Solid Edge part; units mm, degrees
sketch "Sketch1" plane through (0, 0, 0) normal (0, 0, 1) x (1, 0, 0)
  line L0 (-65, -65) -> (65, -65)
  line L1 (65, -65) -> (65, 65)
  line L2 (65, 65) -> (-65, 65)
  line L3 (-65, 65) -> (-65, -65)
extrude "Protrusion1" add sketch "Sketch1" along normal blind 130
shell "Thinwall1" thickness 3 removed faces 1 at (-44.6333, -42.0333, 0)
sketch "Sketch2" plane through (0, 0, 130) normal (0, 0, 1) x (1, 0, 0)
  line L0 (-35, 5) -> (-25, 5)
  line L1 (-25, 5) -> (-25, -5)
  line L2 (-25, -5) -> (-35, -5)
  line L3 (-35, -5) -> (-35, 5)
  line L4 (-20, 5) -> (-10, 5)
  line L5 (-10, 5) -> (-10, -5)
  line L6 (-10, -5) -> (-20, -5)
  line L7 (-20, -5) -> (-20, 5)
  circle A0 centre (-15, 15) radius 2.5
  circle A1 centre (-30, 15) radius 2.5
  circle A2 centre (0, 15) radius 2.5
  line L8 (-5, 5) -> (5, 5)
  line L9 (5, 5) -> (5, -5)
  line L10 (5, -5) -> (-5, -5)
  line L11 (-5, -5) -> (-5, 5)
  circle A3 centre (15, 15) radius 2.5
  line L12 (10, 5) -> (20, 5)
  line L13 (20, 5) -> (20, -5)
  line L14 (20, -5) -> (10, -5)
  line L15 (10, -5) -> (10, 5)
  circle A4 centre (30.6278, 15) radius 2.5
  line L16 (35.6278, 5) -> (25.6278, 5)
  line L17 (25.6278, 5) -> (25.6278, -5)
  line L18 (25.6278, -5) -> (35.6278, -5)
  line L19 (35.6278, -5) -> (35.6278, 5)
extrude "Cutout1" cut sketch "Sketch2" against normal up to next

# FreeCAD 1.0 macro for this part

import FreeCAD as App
import Part
import Sketcher
from FreeCAD import Vector


def faces_at(feature, points):
    """Names of the faces that lie closest to the given points."""
    faces = feature.Shape.Faces
    near = lambda p: min(range(len(faces)), key=lambda i: faces[i].distToShape(Part.Vertex(*p))[0])
    return sorted({f"Face{near(p) + 1}" for p in points})

doc = App.newDocument("Part")
body = doc.addObject("PartDesign::Body", "Body")

sketch1 = body.newObject("Sketcher::SketchObject", "Sketch")
sketch1.AttachmentSupport = (doc.getObject("XY_Plane"), [""])
sketch1.MapMode = "FlatFace"
sketch1.addGeometry([
    Part.LineSegment(Vector(-65, 65, 0), Vector(-65, -65, 0)),
    Part.LineSegment(Vector(-65, -65, 0), Vector(65, -65, 0)),
    Part.LineSegment(Vector(65, -65, 0), Vector(65, 65, 0)),
    Part.LineSegment(Vector(65, 65, 0), Vector(-65, 65, 0)),
], False)
sketch1.addConstraint([
    Sketcher.Constraint("Coincident", 0, 2, 1, 1),
    Sketcher.Constraint("Coincident", 1, 2, 2, 1),
    Sketcher.Constraint("Coincident", 2, 2, 3, 1),
    Sketcher.Constraint("Coincident", 3, 2, 0, 1),
    Sketcher.Constraint("Vertical", 0),
    Sketcher.Constraint("Horizontal", 1),
    Sketcher.Constraint("Vertical", 2),
    Sketcher.Constraint("Horizontal", 3),
    Sketcher.Constraint("Symmetric", 0, 2, 2, 2, -1, 1),
    Sketcher.Constraint("Equal", 3, 0),
    Sketcher.Constraint("DistanceX", 1, 1, 1, 2, 130.0),
])
pad1 = body.newObject("PartDesign::Pad", "Pad")
pad1.Profile = sketch1
pad1.Length = 130
doc.recompute()

thickness = body.newObject("PartDesign::Thickness", "Thickness")
thickness.Base = (pad1, faces_at(pad1, [(-44.633, -42.033, 0)]))
thickness.Value = 3
thickness.Reversed = True
thickness.Join = "Intersection"

sketch2 = body.newObject("Sketcher::SketchObject", "Sketch001")
sketch2.AttachmentSupport = (doc.getObject("XY_Plane"), [""])
sketch2.MapMode = "FlatFace"
sketch2.AttachmentOffset = App.Placement(Vector(0, 0, 130), App.Rotation())
sketch2.addGeometry([
    Part.LineSegment(Vector(-25, 5, 0), Vector(-35, 5, 0)),
    Part.LineSegment(Vector(-35, 5, 0), Vector(-35, -5, 0)),
    Part.LineSegment(Vector(-35, -5, 0), Vector(-25, -5, 0)),
    Part.LineSegment(Vector(-25, -5, 0), Vector(-25, 5, 0)),
    Part.LineSegment(Vector(-10, 5, 0), Vector(-20, 5, 0)),
    Part.LineSegment(Vector(-20, 5, 0), Vector(-20, -5, 0)),
    Part.LineSegment(Vector(-20, -5, 0), Vector(-10, -5, 0)),
    Part.LineSegment(Vector(-10, -5, 0), Vector(-10, 5, 0)),
    Part.Circle(Vector(-15, 15, 0), Vector(0, 0, 1), 2.5),
    Part.Circle(Vector(-30, 15, 0), Vector(0, 0, 1), 2.5),
    Part.Circle(Vector(0, 15, 0), Vector(0, 0, 1), 2.5),
    Part.LineSegment(Vector(5, 5, 0), Vector(-5, 5, 0)),
    Part.LineSegment(Vector(-5, 5, 0), Vector(-5, -5, 0)),
    Part.LineSegment(Vector(-5, -5, 0), Vector(5, -5, 0)),
    Part.LineSegment(Vector(5, -5, 0), Vector(5, 5, 0)),
    Part.Circle(Vector(15, 15, 0), Vector(0, 0, 1), 2.5),
    Part.LineSegment(Vector(20, 5, 0), Vector(10, 5, 0)),
    Part.LineSegment(Vector(10, 5, 0), Vector(10, -5, 0)),
    Part.LineSegment(Vector(10, -5, 0), Vector(20, -5, 0)),
    Part.LineSegment(Vector(20, -5, 0), Vector(20, 5, 0)),
    Part.Circle(Vector(30.6, 15, 0), Vector(0, 0, 1), 2.5),
    Part.LineSegment(Vector(35.6, -5, 0), Vector(35.6, 5, 0)),
    Part.LineSegment(Vector(35.6, 5, 0), Vector(25.6, 5, 0)),
    Part.LineSegment(Vector(25.6, 5, 0), Vector(25.6, -5, 0)),
    Part.LineSegment(Vector(25.6, -5, 0), Vector(35.6, -5, 0)),
], False)
sketch2.addConstraint([
    Sketcher.Constraint("Coincident", 0, 2, 1, 1),
    Sketcher.Constraint("Coincident", 1, 2, 2, 1),
    Sketcher.Constraint("Coincident", 2, 2, 3, 1),
    Sketcher.Constraint("Coincident", 3, 2, 0, 1),
    Sketcher.Constraint("Coincident", 4, 2, 5, 1),
    Sketcher.Constraint("Coincident", 5, 2, 6, 1),
    Sketcher.Constraint("Coincident", 6, 2, 7, 1),
    Sketcher.Constraint("Coincident", 7, 2, 4, 1),
    Sketcher.Constraint("Coincident", 11, 2, 12, 1),
    Sketcher.Constraint("Coincident", 12, 2, 13, 1),
    Sketcher.Constraint("Coincident", 13, 2, 14, 1),
    Sketcher.Constraint("Coincident", 14, 2, 11, 1),
    Sketcher.Constraint("Coincident", 16, 2, 17, 1),
    Sketcher.Constraint("Coincident", 17, 2, 18, 1),
    Sketcher.Constraint("Coincident", 18, 2, 19, 1),
    Sketcher.Constraint("Coincident", 19, 2, 16, 1),
    Sketcher.Constraint("Coincident", 21, 2, 22, 1),
    Sketcher.Constraint("Coincident", 22, 2, 23, 1),
    Sketcher.Constraint("Coincident", 23, 2, 24, 1),
    Sketcher.Constraint("Coincident", 24, 2, 21, 1),
    Sketcher.Constraint("Horizontal", 0),
    Sketcher.Constraint("Vertical", 1),
    Sketcher.Constraint("Horizontal", 2),
    Sketcher.Constraint("Vertical", 3),
    Sketcher.Constraint("Horizontal", 4),
    Sketcher.Constraint("Vertical", 5),
    Sketcher.Constraint("Horizontal", 6),
    Sketcher.Constraint("Vertical", 7),
    Sketcher.Constraint("Horizontal", 11),
    Sketcher.Constraint("Vertical", 12),
    Sketcher.Constraint("Horizontal", 13),
    Sketcher.Constraint("Vertical", 14),
    Sketcher.Constraint("Horizontal", 16),
    Sketcher.Constraint("Vertical", 17),
    Sketcher.Constraint("Horizontal", 18),
    Sketcher.Constraint("Vertical", 19),
    Sketcher.Constraint("Vertical", 21),
    Sketcher.Constraint("Horizontal", 22),
    Sketcher.Constraint("Vertical", 23),
    Sketcher.Constraint("Horizontal", 24),
    Sketcher.Constraint("Equal", 8, 9),
    Sketcher.Constraint("Equal", 9, 10),
    Sketcher.Constraint("Equal", 10, 15),
    Sketcher.Constraint("Equal", 15, 20),
    Sketcher.Constraint("Symmetric", 11, 2, 13, 2, -1, 1),
    Sketcher.Constraint("Symmetric", 6, 2, 16, 2, -1, 1),
    Sketcher.Constraint("Symmetric", 4, 2, 18, 2, -1, 1),
    Sketcher.Constraint("Symmetric", 8, 3, 15, 3, -2),
    Sketcher.Constraint("PointOnObject", 10, 3, -2),
    Sketcher.Constraint("Horizontal", 8, 3, 9, 3),
    Sketcher.Constraint("Horizontal", 9, 3, 10, 3),
    Sketcher.Constraint("Horizontal", 15, 3, 20, 3),
    Sketcher.Constraint("Horizontal", 3, 2, 4, 2),
    Sketcher.Constraint("Horizontal", 2, 2, 5, 2),
    Sketcher.Constraint("Horizontal", 7, 2, 11, 2),
    Sketcher.Constraint("Horizontal", 6, 2, 12, 2),
    Sketcher.Constraint("Horizontal", 19, 2, 21, 2),
    Sketcher.Constraint("Horizontal", 18, 2, 23, 2),
    Sketcher.Constraint("Equal", 2, 4),
    Sketcher.Constraint("Equal", 6, 11),
    Sketcher.Constraint("Equal", 18, 22),
    Sketcher.Constraint("Equal", 24, 1),
    Sketcher.Constraint("Diameter", 8, 5.0),
    Sketcher.Constraint("DistanceX", 0, 2, 0, 1, 10.0),
    Sketcher.Constraint("DistanceX", 8, 3, -1, 1, 15.0),
    Sketcher.Constraint("DistanceY", -1, 1, 8, 3, 15.0),
    Sketcher.Constraint("DistanceX", 9, 3, -1, 1, 30.0),
    Sketcher.Constraint("DistanceX", 0, 2, -1, 1, 35.0),
    Sketcher.Constraint("DistanceX", 4, 2, -1, 1, 20.0),
    Sketcher.Constraint("DistanceX", 20, 3, 21, 2, 5.0),
    Sketcher.Constraint("DistanceX", -1, 1, 20, 3, 30.6278),
])
pocket1 = body.newObject("PartDesign::Pocket", "Pocket")
pocket1.Profile = sketch2
pocket1.Type = "UpToFirst"

doc.recompute()
